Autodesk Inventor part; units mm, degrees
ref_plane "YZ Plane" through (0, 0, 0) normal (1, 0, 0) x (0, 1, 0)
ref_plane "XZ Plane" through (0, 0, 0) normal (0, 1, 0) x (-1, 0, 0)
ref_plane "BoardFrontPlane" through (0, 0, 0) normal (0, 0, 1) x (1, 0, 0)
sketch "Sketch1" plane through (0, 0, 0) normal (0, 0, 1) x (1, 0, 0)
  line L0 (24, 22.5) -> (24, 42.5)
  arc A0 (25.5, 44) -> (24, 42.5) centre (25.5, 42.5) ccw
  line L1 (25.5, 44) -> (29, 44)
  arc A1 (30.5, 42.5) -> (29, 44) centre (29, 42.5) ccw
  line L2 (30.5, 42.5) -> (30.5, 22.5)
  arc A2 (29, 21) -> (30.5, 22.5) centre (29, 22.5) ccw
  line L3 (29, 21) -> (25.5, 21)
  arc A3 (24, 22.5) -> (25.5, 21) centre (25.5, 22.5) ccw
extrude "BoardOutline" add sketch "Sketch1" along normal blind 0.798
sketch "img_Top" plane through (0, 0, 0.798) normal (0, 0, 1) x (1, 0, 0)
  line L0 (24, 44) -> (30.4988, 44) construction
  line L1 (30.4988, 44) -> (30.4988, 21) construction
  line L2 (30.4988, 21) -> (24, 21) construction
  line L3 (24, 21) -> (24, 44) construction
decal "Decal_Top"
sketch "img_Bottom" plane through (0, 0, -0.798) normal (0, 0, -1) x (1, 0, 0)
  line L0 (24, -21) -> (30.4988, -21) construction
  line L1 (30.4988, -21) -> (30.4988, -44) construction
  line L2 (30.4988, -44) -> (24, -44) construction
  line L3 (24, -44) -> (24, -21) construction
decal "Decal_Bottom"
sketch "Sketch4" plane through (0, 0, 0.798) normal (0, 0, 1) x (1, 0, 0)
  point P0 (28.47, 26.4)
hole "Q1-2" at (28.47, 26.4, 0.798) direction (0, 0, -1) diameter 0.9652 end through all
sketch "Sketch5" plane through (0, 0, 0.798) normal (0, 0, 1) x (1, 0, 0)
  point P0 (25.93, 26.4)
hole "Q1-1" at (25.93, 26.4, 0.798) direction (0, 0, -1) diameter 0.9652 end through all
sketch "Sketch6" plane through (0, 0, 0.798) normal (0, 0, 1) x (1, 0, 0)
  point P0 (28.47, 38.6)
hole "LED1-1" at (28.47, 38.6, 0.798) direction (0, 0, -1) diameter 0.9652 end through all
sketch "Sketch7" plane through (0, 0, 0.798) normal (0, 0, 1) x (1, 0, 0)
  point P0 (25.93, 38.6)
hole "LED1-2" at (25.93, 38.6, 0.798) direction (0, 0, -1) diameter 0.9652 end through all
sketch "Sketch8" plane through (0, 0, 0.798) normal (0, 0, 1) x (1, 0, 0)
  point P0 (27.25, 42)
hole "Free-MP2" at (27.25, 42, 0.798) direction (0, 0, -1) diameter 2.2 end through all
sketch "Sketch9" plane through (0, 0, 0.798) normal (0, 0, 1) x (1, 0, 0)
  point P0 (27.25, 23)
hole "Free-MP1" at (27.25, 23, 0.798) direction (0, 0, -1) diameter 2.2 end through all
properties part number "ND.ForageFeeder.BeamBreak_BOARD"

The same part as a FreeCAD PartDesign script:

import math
import FreeCAD as App
import Part
import Sketcher

V = App.Vector
Q = App.Units.Quantity

doc = App.newDocument("Part")
body = doc.addObject("PartDesign::Body", "Body")

sketch1 = doc.addObject("Sketcher::SketchObject", "Sketch")
body.addObject(sketch1)
sketch1.AttachmentSupport = (doc.XY_Plane, [""])
sketch1.MapMode = "FlatFace"
sketch1.addGeometry([
    Part.LineSegment(V(24, 42.5, 0), V(24, 22.5, 0)),
    Part.ArcOfCircle(Part.Circle(V(25.5, 22.5, 0), V(0, 0, 1), 1.5), math.radians(180), math.radians(270)),
    Part.LineSegment(V(25.5, 21, 0), V(29, 21, 0)),
    Part.ArcOfCircle(Part.Circle(V(29, 22.5, 0), V(0, 0, 1), 1.5), math.radians(-90), math.radians(0)),
    Part.LineSegment(V(30.5, 22.5, 0), V(30.5, 42.5, 0)),
    Part.ArcOfCircle(Part.Circle(V(29, 42.5, 0), V(0, 0, 1), 1.5), math.radians(0), math.radians(90)),
    Part.LineSegment(V(29, 44, 0), V(25.5, 44, 0)),
    Part.ArcOfCircle(Part.Circle(V(25.5, 42.5, 0), V(0, 0, 1), 1.5), math.radians(90), math.radians(180)),
], False)
sketch1.addConstraint([
    Sketcher.Constraint("Tangent", 0, 2, 1, 1),
    Sketcher.Constraint("Tangent", 1, 2, 2, 1),
    Sketcher.Constraint("Tangent", 2, 2, 3, 1),
    Sketcher.Constraint("Tangent", 3, 2, 4, 1),
    Sketcher.Constraint("Tangent", 4, 2, 5, 1),
    Sketcher.Constraint("Tangent", 5, 2, 6, 1),
    Sketcher.Constraint("Tangent", 6, 2, 7, 1),
    Sketcher.Constraint("Tangent", 7, 2, 0, 1),
    Sketcher.Constraint("Vertical", 0),
    Sketcher.Constraint("Horizontal", 2),
    Sketcher.Constraint("Vertical", 4),
    Sketcher.Constraint("Horizontal", 6),
    Sketcher.Constraint("Equal", 1, 3),
    Sketcher.Constraint("Equal", 3, 5),
    Sketcher.Constraint("Equal", 5, 7),
    Sketcher.Constraint("Radius", 1, Q("1.5 mm")),
    Sketcher.Constraint("DistanceY", 0, 2, 0, 1, Q("20 mm")),
    Sketcher.Constraint("DistanceX", 2, 1, 2, 2, Q("3.5 mm")),
    Sketcher.Constraint("DistanceX", -1, 1, 3, 3, Q("29 mm")),
    Sketcher.Constraint("DistanceY", -1, 1, 1, 2, Q("21 mm")),
])
pad1 = doc.addObject("PartDesign::Pad", "Pad")
body.addObject(pad1)
pad1.Profile = sketch1
pad1.Length = 0.798

sketch2 = doc.addObject("Sketcher::SketchObject", "Sketch001")
body.addObject(sketch2)
sketch2.AttachmentSupport = (doc.XY_Plane, [""])
sketch2.MapMode = "FlatFace"
sketch2.AttachmentOffset = App.Placement(V(0, 0, 0.798), App.Rotation())
sketch2.addGeometry(Part.Circle(V(28.47, 26.4, 0), V(0, 0, 1), 0.48), False)
sketch2.addConstraint([
    Sketcher.Constraint("Diameter", 0, Q("0.9652 mm")),
    Sketcher.Constraint("DistanceY", -1, 1, 0, 3, Q("26.4 mm")),
    Sketcher.Constraint("DistanceX", -1, 1, 0, 3, Q("28.47 mm")),
])
doc.recompute()
hole = doc.addObject("PartDesign::Hole", "Hole")
body.addObject(hole)
hole.Profile = sketch2
hole.ThreadType = "None"
hole.Diameter = 0.9652
hole.DepthType = "ThroughAll"

sketch3 = doc.addObject("Sketcher::SketchObject", "Sketch002")
body.addObject(sketch3)
sketch3.AttachmentSupport = (doc.XY_Plane, [""])
sketch3.MapMode = "FlatFace"
sketch3.AttachmentOffset = App.Placement(V(0, 0, 0.798), App.Rotation())
sketch3.addGeometry(Part.Circle(V(25.93, 26.4, 0), V(0, 0, 1), 0.48), False)
sketch3.addConstraint([
    Sketcher.Constraint("Diameter", 0, Q("0.9652 mm")),
    Sketcher.Constraint("DistanceY", -1, 1, 0, 3, Q("26.4 mm")),
    Sketcher.Constraint("DistanceX", -1, 1, 0, 3, Q("25.93 mm")),
])
doc.recompute()
hole2 = doc.addObject("PartDesign::Hole", "Hole001")
body.addObject(hole2)
hole2.Profile = sketch3
hole2.ThreadType = "None"
hole2.Diameter = 0.9652
hole2.DepthType = "ThroughAll"

sketch4 = doc.addObject("Sketcher::SketchObject", "Sketch003")
body.addObject(sketch4)
sketch4.AttachmentSupport = (doc.XY_Plane, [""])
sketch4.MapMode = "FlatFace"
sketch4.AttachmentOffset = App.Placement(V(0, 0, 0.798), App.Rotation())
sketch4.addGeometry(Part.Circle(V(28.47, 38.6, 0), V(0, 0, 1), 0.48), False)
sketch4.addConstraint([
    Sketcher.Constraint("Diameter", 0, Q("0.9652 mm")),
    Sketcher.Constraint("DistanceY", -1, 1, 0, 3, Q("38.6 mm")),
    Sketcher.Constraint("DistanceX", -1, 1, 0, 3, Q("28.47 mm")),
])
doc.recompute()
hole3 = doc.addObject("PartDesign::Hole", "Hole002")
body.addObject(hole3)
hole3.Profile = sketch4
hole3.ThreadType = "None"
hole3.Diameter = 0.9652
hole3.DepthType = "ThroughAll"

sketch5 = doc.addObject("Sketcher::SketchObject", "Sketch004")
body.addObject(sketch5)
sketch5.AttachmentSupport = (doc.XY_Plane, [""])
sketch5.MapMode = "FlatFace"
sketch5.AttachmentOffset = App.Placement(V(0, 0, 0.798), App.Rotation())
sketch5.addGeometry(Part.Circle(V(25.93, 38.6, 0), V(0, 0, 1), 0.48), False)
sketch5.addConstraint([
    Sketcher.Constraint("Diameter", 0, Q("0.9652 mm")),
    Sketcher.Constraint("DistanceY", -1, 1, 0, 3, Q("38.6 mm")),
    Sketcher.Constraint("DistanceX", -1, 1, 0, 3, Q("25.93 mm")),
])
doc.recompute()
hole4 = doc.addObject("PartDesign::Hole", "Hole003")
body.addObject(hole4)
hole4.Profile = sketch5
hole4.ThreadType = "None"
hole4.Diameter = 0.9652
hole4.DepthType = "ThroughAll"

sketch6 = doc.addObject("Sketcher::SketchObject", "Sketch005")
body.addObject(sketch6)
sketch6.AttachmentSupport = (doc.XY_Plane, [""])
sketch6.MapMode = "FlatFace"
sketch6.AttachmentOffset = App.Placement(V(0, 0, 0.798), App.Rotation())
sketch6.addGeometry(Part.Circle(V(27.2, 42, 0), V(0, 0, 1), 1.1), False)
sketch6.addConstraint([
    Sketcher.Constraint("Diameter", 0, Q("2.2 mm")),
    Sketcher.Constraint("DistanceY", -1, 1, 0, 3, Q("42 mm")),
    Sketcher.Constraint("DistanceX", -1, 1, 0, 3, Q("27.25 mm")),
])
doc.recompute()
hole5 = doc.addObject("PartDesign::Hole", "Hole004")
body.addObject(hole5)
hole5.Profile = sketch6
hole5.ThreadType = "None"
hole5.Diameter = 2.2
hole5.DepthType = "ThroughAll"

sketch7 = doc.addObject("Sketcher::SketchObject", "Sketch006")
body.addObject(sketch7)
sketch7.AttachmentSupport = (doc.XY_Plane, [""])
sketch7.MapMode = "FlatFace"
sketch7.AttachmentOffset = App.Placement(V(0, 0, 0.798), App.Rotation())
sketch7.addGeometry(Part.Circle(V(27.2, 23, 0), V(0, 0, 1), 1.1), False)
sketch7.addConstraint([
    Sketcher.Constraint("Diameter", 0, Q("2.2 mm")),
    Sketcher.Constraint("DistanceY", -1, 1, 0, 3, Q("23 mm")),
    Sketcher.Constraint("DistanceX", -1, 1, 0, 3, Q("27.25 mm")),
])
doc.recompute()
hole6 = doc.addObject("PartDesign::Hole", "Hole005")
body.addObject(hole6)
hole6.Profile = sketch7
hole6.ThreadType = "None"
hole6.Diameter = 2.2
hole6.DepthType = "ThroughAll"

doc.recompute()
